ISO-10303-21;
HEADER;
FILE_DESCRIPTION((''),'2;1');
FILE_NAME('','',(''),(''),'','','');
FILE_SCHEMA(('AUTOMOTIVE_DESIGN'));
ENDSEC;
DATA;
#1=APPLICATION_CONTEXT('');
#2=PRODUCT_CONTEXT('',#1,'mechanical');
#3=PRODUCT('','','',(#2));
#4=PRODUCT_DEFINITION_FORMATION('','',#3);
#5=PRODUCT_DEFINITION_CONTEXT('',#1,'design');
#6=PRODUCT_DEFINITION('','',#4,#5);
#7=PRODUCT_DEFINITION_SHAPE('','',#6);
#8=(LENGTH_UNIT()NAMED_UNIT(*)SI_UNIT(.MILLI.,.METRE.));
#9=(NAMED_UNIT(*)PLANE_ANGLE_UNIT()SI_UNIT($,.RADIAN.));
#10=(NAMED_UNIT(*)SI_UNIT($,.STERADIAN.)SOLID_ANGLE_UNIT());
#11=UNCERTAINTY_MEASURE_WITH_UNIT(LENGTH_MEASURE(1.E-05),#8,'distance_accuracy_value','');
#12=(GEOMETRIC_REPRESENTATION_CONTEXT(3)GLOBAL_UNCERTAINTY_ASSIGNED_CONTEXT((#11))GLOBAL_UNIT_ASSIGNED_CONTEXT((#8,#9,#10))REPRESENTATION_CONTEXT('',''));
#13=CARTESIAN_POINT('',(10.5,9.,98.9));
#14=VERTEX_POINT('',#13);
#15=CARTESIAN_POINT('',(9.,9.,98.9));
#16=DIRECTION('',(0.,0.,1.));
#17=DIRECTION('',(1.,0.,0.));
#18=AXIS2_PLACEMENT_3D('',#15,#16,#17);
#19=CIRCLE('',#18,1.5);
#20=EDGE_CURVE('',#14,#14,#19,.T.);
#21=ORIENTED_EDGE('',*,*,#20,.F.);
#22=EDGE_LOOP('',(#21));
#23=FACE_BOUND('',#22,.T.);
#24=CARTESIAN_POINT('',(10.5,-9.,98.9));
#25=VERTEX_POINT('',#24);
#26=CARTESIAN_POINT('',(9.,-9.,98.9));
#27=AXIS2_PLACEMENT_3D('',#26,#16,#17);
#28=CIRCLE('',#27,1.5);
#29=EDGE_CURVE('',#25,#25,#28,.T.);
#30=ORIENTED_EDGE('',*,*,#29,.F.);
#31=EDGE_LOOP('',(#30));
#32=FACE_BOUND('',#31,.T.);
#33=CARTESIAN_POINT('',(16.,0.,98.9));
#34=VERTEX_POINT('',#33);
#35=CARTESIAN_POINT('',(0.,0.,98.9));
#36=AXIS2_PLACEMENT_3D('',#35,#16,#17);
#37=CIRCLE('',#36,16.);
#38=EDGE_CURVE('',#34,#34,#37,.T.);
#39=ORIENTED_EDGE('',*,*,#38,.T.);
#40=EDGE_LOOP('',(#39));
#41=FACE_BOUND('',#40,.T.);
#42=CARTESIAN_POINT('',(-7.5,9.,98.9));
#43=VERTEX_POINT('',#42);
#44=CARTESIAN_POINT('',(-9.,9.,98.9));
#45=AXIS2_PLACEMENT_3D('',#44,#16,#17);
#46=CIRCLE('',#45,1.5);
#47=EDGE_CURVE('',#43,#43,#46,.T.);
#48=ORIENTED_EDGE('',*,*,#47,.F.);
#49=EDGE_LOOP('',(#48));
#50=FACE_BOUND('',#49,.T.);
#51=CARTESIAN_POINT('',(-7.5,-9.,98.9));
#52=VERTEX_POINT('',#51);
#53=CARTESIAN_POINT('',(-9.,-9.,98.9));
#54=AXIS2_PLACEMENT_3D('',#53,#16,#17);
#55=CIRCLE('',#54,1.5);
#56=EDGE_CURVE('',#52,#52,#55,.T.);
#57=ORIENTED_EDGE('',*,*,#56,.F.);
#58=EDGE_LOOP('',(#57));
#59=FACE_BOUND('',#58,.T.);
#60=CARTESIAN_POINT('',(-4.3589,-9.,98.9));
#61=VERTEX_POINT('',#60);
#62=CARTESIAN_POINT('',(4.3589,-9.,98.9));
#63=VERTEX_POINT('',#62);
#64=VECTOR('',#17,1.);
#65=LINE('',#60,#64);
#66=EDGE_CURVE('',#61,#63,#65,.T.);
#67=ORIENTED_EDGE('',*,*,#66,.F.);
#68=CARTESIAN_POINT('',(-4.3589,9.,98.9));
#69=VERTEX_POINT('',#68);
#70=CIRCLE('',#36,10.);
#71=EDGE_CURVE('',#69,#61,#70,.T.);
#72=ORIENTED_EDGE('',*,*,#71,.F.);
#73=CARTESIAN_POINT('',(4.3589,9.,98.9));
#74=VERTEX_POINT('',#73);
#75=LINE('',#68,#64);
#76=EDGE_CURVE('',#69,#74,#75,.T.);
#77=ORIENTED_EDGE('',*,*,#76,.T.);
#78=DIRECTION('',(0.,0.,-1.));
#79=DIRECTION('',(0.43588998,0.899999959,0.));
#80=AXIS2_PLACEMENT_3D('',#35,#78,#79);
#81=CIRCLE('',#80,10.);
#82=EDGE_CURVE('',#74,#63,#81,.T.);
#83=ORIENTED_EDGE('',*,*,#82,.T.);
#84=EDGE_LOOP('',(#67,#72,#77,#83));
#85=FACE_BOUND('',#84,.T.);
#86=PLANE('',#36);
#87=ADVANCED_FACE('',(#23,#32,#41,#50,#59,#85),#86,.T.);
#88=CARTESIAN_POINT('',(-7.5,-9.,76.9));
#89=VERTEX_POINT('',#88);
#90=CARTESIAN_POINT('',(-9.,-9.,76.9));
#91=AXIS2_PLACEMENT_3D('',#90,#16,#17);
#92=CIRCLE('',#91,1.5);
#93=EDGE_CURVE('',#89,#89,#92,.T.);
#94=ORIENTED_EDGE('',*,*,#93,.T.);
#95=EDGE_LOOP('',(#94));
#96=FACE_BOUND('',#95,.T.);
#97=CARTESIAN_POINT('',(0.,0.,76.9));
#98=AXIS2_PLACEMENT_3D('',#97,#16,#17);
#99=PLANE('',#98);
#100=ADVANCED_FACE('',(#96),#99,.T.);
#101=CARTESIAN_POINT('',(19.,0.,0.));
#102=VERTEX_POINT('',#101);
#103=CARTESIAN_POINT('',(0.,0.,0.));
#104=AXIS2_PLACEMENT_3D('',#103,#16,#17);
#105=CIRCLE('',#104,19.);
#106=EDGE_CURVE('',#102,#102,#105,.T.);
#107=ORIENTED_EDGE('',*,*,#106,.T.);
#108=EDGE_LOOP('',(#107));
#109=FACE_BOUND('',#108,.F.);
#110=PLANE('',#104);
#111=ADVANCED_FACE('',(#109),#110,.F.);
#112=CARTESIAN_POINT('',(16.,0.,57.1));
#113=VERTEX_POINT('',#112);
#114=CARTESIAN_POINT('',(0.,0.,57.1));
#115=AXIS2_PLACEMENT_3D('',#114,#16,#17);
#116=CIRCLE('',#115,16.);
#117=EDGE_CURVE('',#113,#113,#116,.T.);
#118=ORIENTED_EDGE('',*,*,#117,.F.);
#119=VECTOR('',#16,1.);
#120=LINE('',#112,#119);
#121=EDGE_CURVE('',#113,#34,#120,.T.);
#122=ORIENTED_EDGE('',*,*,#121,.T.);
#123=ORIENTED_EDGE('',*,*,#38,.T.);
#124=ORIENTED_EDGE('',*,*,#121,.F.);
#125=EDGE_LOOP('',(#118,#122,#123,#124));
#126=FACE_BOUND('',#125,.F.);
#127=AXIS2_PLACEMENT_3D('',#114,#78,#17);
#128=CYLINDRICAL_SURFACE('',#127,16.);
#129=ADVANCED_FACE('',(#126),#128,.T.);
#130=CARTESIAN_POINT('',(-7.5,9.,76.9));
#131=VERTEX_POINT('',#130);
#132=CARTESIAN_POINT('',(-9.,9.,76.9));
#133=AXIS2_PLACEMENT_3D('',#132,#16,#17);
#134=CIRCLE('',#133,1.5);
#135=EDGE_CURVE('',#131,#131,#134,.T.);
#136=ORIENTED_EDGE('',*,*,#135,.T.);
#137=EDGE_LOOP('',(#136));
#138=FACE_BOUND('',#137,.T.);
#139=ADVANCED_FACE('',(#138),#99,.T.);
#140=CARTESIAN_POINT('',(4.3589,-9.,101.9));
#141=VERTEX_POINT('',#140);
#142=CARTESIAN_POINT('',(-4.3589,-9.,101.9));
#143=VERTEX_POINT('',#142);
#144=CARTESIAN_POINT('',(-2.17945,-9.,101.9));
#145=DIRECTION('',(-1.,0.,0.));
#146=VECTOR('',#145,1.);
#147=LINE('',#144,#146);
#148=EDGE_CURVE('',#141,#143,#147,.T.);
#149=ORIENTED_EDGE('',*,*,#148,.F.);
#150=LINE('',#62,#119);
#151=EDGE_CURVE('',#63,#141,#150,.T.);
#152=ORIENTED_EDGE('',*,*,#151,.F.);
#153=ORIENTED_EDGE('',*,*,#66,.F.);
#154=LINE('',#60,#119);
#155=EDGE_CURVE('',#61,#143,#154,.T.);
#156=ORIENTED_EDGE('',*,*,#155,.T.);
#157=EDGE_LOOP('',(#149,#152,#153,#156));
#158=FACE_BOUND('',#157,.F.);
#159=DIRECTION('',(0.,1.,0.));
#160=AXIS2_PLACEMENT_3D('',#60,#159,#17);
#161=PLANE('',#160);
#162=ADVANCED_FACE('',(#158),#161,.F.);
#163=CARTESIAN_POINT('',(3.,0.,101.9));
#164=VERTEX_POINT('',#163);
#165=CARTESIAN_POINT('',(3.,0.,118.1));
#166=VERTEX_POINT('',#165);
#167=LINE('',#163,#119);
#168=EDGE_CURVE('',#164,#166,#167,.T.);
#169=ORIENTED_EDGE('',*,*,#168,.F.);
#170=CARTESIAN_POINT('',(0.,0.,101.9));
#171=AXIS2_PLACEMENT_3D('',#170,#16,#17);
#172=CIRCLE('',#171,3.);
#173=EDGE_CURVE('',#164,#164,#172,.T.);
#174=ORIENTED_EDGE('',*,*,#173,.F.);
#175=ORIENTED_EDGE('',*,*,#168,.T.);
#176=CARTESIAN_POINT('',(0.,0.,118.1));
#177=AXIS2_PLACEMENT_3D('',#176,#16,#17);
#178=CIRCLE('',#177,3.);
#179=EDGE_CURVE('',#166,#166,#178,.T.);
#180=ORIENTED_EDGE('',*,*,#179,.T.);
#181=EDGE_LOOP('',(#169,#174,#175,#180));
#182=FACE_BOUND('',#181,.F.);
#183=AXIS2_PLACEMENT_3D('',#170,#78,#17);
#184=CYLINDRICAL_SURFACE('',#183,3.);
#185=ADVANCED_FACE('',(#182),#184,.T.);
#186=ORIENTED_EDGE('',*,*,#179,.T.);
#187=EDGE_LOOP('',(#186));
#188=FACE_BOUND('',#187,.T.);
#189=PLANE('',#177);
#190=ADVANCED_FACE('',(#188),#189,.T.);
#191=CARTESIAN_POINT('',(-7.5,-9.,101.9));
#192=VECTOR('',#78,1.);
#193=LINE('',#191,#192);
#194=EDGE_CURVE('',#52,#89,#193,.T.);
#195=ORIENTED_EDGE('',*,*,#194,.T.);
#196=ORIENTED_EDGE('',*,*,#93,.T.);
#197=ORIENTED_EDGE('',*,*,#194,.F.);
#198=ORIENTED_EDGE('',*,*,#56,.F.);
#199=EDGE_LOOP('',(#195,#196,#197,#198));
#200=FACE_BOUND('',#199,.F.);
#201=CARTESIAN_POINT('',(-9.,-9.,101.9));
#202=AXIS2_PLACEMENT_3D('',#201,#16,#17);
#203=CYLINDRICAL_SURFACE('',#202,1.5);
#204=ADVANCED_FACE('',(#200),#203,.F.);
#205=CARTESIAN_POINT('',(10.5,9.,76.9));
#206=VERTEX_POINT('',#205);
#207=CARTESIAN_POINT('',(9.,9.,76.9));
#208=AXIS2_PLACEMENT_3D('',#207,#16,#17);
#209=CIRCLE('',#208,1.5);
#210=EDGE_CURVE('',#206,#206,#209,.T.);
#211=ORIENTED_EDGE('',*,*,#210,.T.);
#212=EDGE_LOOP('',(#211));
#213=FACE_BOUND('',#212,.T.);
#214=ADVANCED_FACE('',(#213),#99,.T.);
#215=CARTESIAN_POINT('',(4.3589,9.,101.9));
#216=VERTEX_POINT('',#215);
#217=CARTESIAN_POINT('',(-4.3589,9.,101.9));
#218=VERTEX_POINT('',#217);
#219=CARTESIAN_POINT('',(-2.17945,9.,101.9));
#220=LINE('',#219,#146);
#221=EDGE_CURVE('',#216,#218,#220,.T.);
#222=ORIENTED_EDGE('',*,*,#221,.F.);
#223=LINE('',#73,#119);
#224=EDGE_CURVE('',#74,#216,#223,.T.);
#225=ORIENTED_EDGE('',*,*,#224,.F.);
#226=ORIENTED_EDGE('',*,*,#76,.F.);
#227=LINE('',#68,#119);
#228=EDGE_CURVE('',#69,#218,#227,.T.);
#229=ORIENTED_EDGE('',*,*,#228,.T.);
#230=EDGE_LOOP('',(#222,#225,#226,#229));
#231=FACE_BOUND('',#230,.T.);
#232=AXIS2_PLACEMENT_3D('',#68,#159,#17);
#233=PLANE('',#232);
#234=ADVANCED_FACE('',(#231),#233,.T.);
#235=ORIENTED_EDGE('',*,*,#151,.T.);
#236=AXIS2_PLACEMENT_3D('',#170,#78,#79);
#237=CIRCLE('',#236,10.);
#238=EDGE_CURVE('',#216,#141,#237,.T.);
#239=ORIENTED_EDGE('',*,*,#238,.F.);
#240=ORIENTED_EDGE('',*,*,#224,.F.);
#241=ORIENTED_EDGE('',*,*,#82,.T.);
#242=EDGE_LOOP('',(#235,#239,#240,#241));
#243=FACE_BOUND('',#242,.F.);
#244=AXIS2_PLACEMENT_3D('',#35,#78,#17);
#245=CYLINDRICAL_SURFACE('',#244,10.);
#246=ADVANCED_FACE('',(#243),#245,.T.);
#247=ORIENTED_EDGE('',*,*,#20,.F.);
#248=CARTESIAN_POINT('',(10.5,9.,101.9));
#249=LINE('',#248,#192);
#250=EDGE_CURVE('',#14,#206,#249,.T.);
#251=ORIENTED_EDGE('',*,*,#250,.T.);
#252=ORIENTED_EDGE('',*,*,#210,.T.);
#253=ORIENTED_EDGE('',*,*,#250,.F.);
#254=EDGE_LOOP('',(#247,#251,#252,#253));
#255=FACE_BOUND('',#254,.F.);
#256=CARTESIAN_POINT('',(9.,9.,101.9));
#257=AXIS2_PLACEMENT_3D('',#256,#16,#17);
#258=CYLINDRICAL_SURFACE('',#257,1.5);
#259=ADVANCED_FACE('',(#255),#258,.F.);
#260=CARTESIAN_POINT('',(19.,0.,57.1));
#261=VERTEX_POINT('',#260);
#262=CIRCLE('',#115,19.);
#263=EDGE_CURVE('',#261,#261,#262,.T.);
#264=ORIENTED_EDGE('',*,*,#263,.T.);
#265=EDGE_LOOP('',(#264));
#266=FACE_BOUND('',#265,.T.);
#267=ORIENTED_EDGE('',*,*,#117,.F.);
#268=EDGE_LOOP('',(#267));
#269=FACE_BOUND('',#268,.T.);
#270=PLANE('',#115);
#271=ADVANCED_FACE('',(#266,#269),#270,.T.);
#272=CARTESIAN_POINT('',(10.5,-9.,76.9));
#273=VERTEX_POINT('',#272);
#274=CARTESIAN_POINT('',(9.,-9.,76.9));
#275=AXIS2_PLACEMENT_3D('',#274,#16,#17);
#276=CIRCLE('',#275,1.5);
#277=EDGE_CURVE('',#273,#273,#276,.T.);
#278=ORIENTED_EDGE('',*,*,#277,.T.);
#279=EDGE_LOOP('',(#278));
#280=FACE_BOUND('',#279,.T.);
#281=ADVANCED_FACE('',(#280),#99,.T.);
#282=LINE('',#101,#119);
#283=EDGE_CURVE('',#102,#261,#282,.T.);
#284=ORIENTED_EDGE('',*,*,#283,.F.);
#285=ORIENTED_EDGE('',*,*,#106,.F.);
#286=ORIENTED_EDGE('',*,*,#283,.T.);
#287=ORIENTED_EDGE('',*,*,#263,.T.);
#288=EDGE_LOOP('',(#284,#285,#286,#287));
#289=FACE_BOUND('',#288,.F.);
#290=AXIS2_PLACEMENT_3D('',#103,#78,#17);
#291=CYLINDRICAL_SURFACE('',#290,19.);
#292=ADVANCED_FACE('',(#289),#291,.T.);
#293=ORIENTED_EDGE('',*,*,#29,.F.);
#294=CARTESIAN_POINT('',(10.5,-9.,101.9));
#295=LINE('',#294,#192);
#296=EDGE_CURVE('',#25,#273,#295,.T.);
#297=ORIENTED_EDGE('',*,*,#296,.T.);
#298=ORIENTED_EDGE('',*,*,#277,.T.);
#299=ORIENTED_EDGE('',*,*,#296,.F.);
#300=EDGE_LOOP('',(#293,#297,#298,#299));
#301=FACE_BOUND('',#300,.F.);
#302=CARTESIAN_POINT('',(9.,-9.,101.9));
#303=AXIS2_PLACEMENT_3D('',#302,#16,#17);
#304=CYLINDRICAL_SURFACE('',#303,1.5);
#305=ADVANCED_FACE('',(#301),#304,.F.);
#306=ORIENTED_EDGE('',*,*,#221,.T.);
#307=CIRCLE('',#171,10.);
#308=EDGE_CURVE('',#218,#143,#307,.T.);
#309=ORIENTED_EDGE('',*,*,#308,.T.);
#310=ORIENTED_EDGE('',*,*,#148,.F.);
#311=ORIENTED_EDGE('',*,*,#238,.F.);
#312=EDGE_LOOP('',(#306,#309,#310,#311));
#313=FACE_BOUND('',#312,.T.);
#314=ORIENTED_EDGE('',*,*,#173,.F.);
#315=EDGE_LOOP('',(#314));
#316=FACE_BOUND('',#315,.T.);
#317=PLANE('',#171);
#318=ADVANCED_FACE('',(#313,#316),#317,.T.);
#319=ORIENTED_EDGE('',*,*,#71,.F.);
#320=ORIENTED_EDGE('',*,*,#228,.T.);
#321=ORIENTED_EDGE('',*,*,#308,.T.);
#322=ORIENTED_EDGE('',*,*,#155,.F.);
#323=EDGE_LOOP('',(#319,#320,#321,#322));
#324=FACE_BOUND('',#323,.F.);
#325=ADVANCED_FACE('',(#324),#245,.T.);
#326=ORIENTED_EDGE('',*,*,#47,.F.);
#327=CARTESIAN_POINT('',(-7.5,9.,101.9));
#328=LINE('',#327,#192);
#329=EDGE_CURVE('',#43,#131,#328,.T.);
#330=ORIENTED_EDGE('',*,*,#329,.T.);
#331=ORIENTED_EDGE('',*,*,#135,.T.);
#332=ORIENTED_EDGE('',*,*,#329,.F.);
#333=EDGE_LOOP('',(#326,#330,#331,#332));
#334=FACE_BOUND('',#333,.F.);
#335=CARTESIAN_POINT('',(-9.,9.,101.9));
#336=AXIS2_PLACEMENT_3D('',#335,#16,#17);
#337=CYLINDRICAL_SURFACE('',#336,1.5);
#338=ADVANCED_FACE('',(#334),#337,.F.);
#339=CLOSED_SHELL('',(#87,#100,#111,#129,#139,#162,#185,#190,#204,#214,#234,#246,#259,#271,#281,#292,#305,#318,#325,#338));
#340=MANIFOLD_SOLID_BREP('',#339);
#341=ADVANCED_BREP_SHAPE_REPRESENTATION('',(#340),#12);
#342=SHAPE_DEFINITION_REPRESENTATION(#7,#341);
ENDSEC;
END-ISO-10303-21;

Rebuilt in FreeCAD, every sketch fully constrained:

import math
import FreeCAD as App
import Part
import Sketcher
from FreeCAD import Vector

doc = App.newDocument("Part")
params = doc.addObject("Spreadsheet::Sheet", "Params")
for row, (alias, value) in enumerate([
    ("sketch1_diameter", "38 mm"),
    ("pad1_length", "57.1 mm"),
    ("sketch2_diameter", "32 mm"),
    ("pad2_length", "41.8 mm"),
    ("sketch3_diameter", "20 mm"),
    ("pad3_length", "3 mm"),
    ("sketch4_diameter", "6 mm"),
    ("pad4_length", "16.2 mm"),
    ("sketch5_diameter", "3 mm"),
    ("pocket1_length", "25 mm"),
    ("sketch6_radius", "10 mm"),
], start=1):
    params.set(f"A{row}", alias)
    params.set(f"B{row}", "=" + value)
    params.setAlias(f"B{row}", alias)

body = doc.addObject("PartDesign::Body", "Body")

# Sketch on XY plane
sketch1 = doc.addObject("Sketcher::SketchObject", "Sketch")
body.addObject(sketch1)
sketch1.AttachmentSupport = (doc.XY_Plane, [""])
sketch1.MapMode = "FlatFace"
sketch1.addGeometry(Part.Circle(Vector(0, 0, 0), Vector(0, 0, 1), 19), False)
sketch1.addConstraint(Sketcher.Constraint("Coincident", 0, 3, -1, 1))
sketch1.addConstraint(Sketcher.Constraint("Diameter", 0, 38.0))
sketch1.setExpression("Constraints[1]", "Params.sketch1_diameter")
pad1 = doc.addObject("PartDesign::Pad", "Pad")
body.addObject(pad1)
pad1.Profile = sketch1
pad1.setExpression("Length", "Params.pad1_length")

# Sketch on XY plane
sketch2 = doc.addObject("Sketcher::SketchObject", "Sketch001")
body.addObject(sketch2)
sketch2.AttachmentSupport = (doc.XY_Plane, [""])
sketch2.MapMode = "FlatFace"
sketch2.AttachmentOffset = App.Placement(Vector(0, 0, 57.1), App.Rotation())
sketch2.addGeometry(Part.Circle(Vector(0, 0, 0), Vector(0, 0, 1), 16), False)
sketch2.addConstraint(Sketcher.Constraint("Coincident", 0, 3, -1, 1))
sketch2.addConstraint(Sketcher.Constraint("Diameter", 0, 32.0))
sketch2.setExpression("Constraints[1]", "Params.sketch2_diameter")
pad2 = doc.addObject("PartDesign::Pad", "Pad001")
body.addObject(pad2)
pad2.Profile = sketch2
pad2.setExpression("Length", "Params.pad2_length")

# Sketch on XY plane
sketch3 = doc.addObject("Sketcher::SketchObject", "Sketch002")
body.addObject(sketch3)
sketch3.AttachmentSupport = (doc.XY_Plane, [""])
sketch3.MapMode = "FlatFace"
sketch3.AttachmentOffset = App.Placement(Vector(0, 0, 98.9), App.Rotation())
sketch3.addGeometry(Part.Circle(Vector(0, 0, 0), Vector(0, 0, 1), 10), False)
sketch3.addConstraint(Sketcher.Constraint("Coincident", 0, 3, -1, 1))
sketch3.addConstraint(Sketcher.Constraint("Diameter", 0, 20.0))
sketch3.setExpression("Constraints[1]", "Params.sketch3_diameter")
pad3 = doc.addObject("PartDesign::Pad", "Pad002")
body.addObject(pad3)
pad3.Profile = sketch3
pad3.setExpression("Length", "Params.pad3_length")

# Sketch on XY plane
sketch4 = doc.addObject("Sketcher::SketchObject", "Sketch003")
body.addObject(sketch4)
sketch4.AttachmentSupport = (doc.XY_Plane, [""])
sketch4.MapMode = "FlatFace"
sketch4.AttachmentOffset = App.Placement(Vector(0, 0, 101.9), App.Rotation())
sketch4.addGeometry(Part.Circle(Vector(0, 0, 0), Vector(0, 0, 1), 3), False)
sketch4.addConstraint(Sketcher.Constraint("Coincident", 0, 3, -1, 1))
sketch4.addConstraint(Sketcher.Constraint("Diameter", 0, 6.0))
sketch4.setExpression("Constraints[1]", "Params.sketch4_diameter")
pad4 = doc.addObject("PartDesign::Pad", "Pad003")
body.addObject(pad4)
pad4.Profile = sketch4
pad4.setExpression("Length", "Params.pad4_length")

# Sketch on XY plane
sketch5 = doc.addObject("Sketcher::SketchObject", "Sketch004")
body.addObject(sketch5)
sketch5.AttachmentSupport = (doc.XY_Plane, [""])
sketch5.MapMode = "FlatFace"
sketch5.AttachmentOffset = App.Placement(Vector(0, 0, 101.9), App.Rotation())
sketch5.addGeometry(Part.Circle(Vector(9, 9, 0), Vector(0, 0, 1), 1.5), False)
sketch5.addGeometry(Part.Circle(Vector(9, -9, 0), Vector(0, 0, 1), 1.5), False)
sketch5.addGeometry(Part.Circle(Vector(-9, -9, 0), Vector(0, 0, 1), 1.5), False)
sketch5.addGeometry(Part.Circle(Vector(-9, 9, 0), Vector(0, 0, 1), 1.5), False)
sketch5.addConstraint(Sketcher.Constraint("Equal", 0, 1))
sketch5.addConstraint(Sketcher.Constraint("Equal", 1, 2))
sketch5.addConstraint(Sketcher.Constraint("Equal", 2, 3))
sketch5.addConstraint(Sketcher.Constraint("Symmetric", 0, 3, 2, 3, -1, 1))
sketch5.addConstraint(Sketcher.Constraint("Symmetric", 1, 3, 3, 3, -1, 1))
sketch5.addConstraint(Sketcher.Constraint("Symmetric", 1, 3, 2, 3, -2))
sketch5.addConstraint(Sketcher.Constraint("Diameter", 0, 3.0))
sketch5.addConstraint(Sketcher.Constraint("DistanceY", 1, 3, 0, 3, 18.0))
sketch5.addConstraint(Sketcher.Constraint("DistanceX", 2, 3, 1, 3, 18.0))
sketch5.setExpression("Constraints[6]", "Params.sketch5_diameter")
pocket1 = doc.addObject("PartDesign::Pocket", "Pocket")
body.addObject(pocket1)
pocket1.Profile = sketch5
pocket1.setExpression("Length", "Params.pocket1_length")

# Sketch on XY plane
sketch6 = doc.addObject("Sketcher::SketchObject", "Sketch005")
body.addObject(sketch6)
sketch6.AttachmentSupport = (doc.XY_Plane, [""])
sketch6.MapMode = "FlatFace"
sketch6.AttachmentOffset = App.Placement(Vector(0, 0, 98.9), App.Rotation())
sketch6.addGeometry(Part.LineSegment(Vector(-4, 9, 0), Vector(4, 9, 0)), False)
sketch6.addGeometry(Part.ArcOfCircle(Part.Circle(Vector(0, 0, 0), Vector(0, 0, 1), 10), math.radians(64), math.radians(116)), False)
sketch6.addGeometry(Part.ArcOfCircle(Part.Circle(Vector(0, 0, 0), Vector(0, 0, 1), 10), math.radians(-116), math.radians(-64)), False)
sketch6.addGeometry(Part.LineSegment(Vector(4, -9, 0), Vector(-4, -9, 0)), False)
sketch6.addConstraint(Sketcher.Constraint("Coincident", 0, 1, 1, 2))
sketch6.addConstraint(Sketcher.Constraint("Coincident", 1, 1, 0, 2))
sketch6.addConstraint(Sketcher.Constraint("Coincident", 2, 1, 3, 2))
sketch6.addConstraint(Sketcher.Constraint("Coincident", 3, 1, 2, 2))
sketch6.addConstraint(Sketcher.Constraint("Horizontal", 0))
sketch6.addConstraint(Sketcher.Constraint("Horizontal", 3))
sketch6.addConstraint(Sketcher.Constraint("Coincident", 1, 3, -1, 1))
sketch6.addConstraint(Sketcher.Constraint("Coincident", 2, 3, -1, 1))
sketch6.addConstraint(Sketcher.Constraint("Equal", 1, 2))
sketch6.addConstraint(Sketcher.Constraint("Vertical", 0, 1, 2, 1))
sketch6.addConstraint(Sketcher.Constraint("Radius", 1, 10.0))
sketch6.addConstraint(Sketcher.Constraint("DistanceY", 2, 1, 0, 1, 18.0))
sketch6.setExpression("Constraints[10]", "Params.sketch6_radius")
pocket2 = doc.addObject("PartDesign::Pocket", "Pocket001")
body.addObject(pocket2)
pocket2.Profile = sketch6
pocket2.Type = "ThroughAll"
pocket2.Reversed = True

doc.recompute()
